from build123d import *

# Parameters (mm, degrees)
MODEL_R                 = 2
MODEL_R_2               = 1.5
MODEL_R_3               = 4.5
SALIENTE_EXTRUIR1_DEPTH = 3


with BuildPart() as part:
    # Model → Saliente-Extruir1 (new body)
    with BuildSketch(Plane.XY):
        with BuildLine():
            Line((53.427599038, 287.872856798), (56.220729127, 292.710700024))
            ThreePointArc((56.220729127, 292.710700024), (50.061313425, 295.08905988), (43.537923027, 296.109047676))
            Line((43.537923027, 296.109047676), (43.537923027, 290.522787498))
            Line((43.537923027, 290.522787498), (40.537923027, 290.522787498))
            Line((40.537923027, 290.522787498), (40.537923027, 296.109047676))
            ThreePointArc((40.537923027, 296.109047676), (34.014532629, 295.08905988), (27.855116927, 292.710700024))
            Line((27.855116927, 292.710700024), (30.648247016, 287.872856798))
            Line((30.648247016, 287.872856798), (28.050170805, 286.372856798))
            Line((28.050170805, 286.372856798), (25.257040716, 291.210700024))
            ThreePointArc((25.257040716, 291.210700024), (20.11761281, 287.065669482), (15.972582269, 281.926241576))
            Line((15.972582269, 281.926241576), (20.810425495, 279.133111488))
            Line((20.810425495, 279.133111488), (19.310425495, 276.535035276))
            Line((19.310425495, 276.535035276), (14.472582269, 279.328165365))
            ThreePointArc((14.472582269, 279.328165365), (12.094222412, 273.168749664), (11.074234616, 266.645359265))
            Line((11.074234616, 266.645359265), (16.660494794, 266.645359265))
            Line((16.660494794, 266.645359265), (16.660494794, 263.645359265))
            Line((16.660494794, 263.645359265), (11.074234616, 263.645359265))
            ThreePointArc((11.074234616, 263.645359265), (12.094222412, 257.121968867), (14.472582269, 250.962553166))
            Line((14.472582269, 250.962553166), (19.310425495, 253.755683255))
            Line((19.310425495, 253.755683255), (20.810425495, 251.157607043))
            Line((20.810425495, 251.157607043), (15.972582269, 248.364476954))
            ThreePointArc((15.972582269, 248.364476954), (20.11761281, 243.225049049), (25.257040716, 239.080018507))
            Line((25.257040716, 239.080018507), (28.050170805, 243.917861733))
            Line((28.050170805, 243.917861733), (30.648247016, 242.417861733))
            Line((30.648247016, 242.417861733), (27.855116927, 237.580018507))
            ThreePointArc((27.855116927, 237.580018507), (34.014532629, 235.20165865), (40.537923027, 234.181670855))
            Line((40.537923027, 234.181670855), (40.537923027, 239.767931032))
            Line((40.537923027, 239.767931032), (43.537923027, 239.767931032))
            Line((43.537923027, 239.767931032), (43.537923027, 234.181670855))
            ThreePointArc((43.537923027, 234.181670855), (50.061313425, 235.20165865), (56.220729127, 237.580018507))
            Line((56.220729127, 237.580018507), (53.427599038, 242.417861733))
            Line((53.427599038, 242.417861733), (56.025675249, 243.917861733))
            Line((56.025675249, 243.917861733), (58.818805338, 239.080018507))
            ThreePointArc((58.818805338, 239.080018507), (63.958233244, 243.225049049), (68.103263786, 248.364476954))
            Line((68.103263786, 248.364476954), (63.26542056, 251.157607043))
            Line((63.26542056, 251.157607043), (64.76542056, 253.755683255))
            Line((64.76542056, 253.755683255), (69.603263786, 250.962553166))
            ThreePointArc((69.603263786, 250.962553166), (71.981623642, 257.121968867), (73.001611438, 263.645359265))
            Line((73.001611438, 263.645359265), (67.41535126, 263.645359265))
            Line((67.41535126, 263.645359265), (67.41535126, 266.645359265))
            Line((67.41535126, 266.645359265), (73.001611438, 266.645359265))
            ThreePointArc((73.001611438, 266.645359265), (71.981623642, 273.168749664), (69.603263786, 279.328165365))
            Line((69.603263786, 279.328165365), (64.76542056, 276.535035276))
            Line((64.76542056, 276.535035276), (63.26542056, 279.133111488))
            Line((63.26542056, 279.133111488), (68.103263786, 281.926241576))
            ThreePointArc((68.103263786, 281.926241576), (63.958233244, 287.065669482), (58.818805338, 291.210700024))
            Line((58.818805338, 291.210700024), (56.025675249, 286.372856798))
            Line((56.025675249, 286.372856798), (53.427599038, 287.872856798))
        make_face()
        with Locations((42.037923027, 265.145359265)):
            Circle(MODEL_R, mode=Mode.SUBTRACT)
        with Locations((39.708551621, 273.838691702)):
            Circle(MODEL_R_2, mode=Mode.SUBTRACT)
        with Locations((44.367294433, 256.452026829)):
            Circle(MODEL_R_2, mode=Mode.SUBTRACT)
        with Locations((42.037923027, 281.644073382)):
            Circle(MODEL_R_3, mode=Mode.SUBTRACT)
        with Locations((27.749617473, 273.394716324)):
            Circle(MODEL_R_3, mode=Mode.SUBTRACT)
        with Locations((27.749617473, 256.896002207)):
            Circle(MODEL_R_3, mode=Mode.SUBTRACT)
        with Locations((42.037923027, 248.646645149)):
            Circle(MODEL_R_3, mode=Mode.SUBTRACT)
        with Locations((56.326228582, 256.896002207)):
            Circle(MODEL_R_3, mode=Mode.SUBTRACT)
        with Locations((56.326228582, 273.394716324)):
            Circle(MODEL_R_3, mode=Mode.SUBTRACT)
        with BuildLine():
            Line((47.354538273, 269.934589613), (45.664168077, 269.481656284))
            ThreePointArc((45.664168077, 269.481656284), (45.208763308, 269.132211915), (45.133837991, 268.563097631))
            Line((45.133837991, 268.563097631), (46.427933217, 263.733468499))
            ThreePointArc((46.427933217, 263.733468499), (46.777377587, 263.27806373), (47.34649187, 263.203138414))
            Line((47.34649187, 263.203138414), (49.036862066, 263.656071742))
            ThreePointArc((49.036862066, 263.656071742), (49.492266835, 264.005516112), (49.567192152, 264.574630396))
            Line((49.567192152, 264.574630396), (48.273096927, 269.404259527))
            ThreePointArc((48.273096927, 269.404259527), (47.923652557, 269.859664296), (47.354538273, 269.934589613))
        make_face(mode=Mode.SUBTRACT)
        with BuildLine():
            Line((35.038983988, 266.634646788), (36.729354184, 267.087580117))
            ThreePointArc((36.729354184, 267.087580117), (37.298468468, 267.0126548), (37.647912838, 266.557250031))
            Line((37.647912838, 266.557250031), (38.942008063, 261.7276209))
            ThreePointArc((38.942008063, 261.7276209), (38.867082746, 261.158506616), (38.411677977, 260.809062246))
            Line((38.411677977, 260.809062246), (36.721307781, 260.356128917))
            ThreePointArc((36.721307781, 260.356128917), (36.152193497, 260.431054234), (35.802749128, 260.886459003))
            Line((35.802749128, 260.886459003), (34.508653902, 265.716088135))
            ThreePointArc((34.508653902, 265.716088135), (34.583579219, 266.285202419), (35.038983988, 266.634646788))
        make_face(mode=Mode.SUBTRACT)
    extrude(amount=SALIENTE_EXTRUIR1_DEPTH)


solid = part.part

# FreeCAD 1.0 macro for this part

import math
import FreeCAD as App
import Part
import Sketcher

V = App.Vector
Q = App.Units.Quantity

doc = App.newDocument("Part")
body = doc.addObject("PartDesign::Body", "Body")

# Sketch on XY plane
sketch1 = body.newObject("Sketcher::SketchObject", "Sketch")
sketch1.AttachmentSupport = (doc.getObject("XY_Plane"), [""])
sketch1.MapMode = "FlatFace"
sketch1.addGeometry([
    Part.LineSegment(V(53.4, 287.9, 0), V(56.2, 292.7, 0)),  # 0
    Part.ArcOfCircle(Part.Circle(V(42, 265.1, 0), V(0, 0, 1), 31), math.radians(63), math.radians(87)),  # 1
    Part.LineSegment(V(43.5, 296.1, 0), V(43.5, 290.5, 0)),  # 2
    Part.LineSegment(V(43.5, 290.5, 0), V(40.5, 290.5, 0)),  # 3
    Part.LineSegment(V(40.5, 290.5, 0), V(40.5, 296.1, 0)),  # 4
    Part.ArcOfCircle(Part.Circle(V(42, 265.1, 0), V(0, 0, 1), 31), math.radians(93), math.radians(117)),  # 5
    Part.LineSegment(V(27.9, 292.7, 0), V(30.6, 287.9, 0)),  # 6
    Part.LineSegment(V(30.6, 287.9, 0), V(28.1, 286.4, 0)),  # 7
    Part.LineSegment(V(28.1, 286.4, 0), V(25.3, 291.2, 0)),  # 8
    Part.ArcOfCircle(Part.Circle(V(42, 265.1, 0), V(0, 0, 1), 31), math.radians(123), math.radians(147)),  # 9
    Part.LineSegment(V(16, 281.9, 0), V(20.8, 279.1, 0)),  # 10
    Part.LineSegment(V(20.8, 279.1, 0), V(19.3, 276.5, 0)),  # 11
    Part.LineSegment(V(19.3, 276.5, 0), V(14.5, 279.3, 0)),  # 12
    Part.ArcOfCircle(Part.Circle(V(42, 265.1, 0), V(0, 0, 1), 31), math.radians(153), math.radians(177)),  # 13
    Part.LineSegment(V(11.1, 266.6, 0), V(16.7, 266.6, 0)),  # 14
    Part.LineSegment(V(16.7, 266.6, 0), V(16.7, 263.6, 0)),  # 15
    Part.LineSegment(V(16.7, 263.6, 0), V(11.1, 263.6, 0)),  # 16
    Part.ArcOfCircle(Part.Circle(V(42, 265.1, 0), V(0, 0, 1), 31), math.radians(-177), math.radians(-153)),  # 17
    Part.LineSegment(V(14.5, 251, 0), V(19.3, 253.8, 0)),  # 18
    Part.LineSegment(V(19.3, 253.8, 0), V(20.8, 251.2, 0)),  # 19
    Part.LineSegment(V(20.8, 251.2, 0), V(16, 248.4, 0)),  # 20
    Part.ArcOfCircle(Part.Circle(V(42, 265.1, 0), V(0, 0, 1), 31), math.radians(-147), math.radians(-123)),  # 21
    Part.LineSegment(V(25.3, 239.1, 0), V(28.1, 243.9, 0)),  # 22
    Part.LineSegment(V(28.1, 243.9, 0), V(30.6, 242.4, 0)),  # 23
    Part.LineSegment(V(30.6, 242.4, 0), V(27.9, 237.6, 0)),  # 24
    Part.ArcOfCircle(Part.Circle(V(42, 265.1, 0), V(0, 0, 1), 31), math.radians(-117), math.radians(-93)),  # 25
    Part.LineSegment(V(40.5, 234.2, 0), V(40.5, 239.8, 0)),  # 26
    Part.LineSegment(V(40.5, 239.8, 0), V(43.5, 239.8, 0)),  # 27
    Part.LineSegment(V(43.5, 239.8, 0), V(43.5, 234.2, 0)),  # 28
    Part.ArcOfCircle(Part.Circle(V(42, 265.1, 0), V(0, 0, 1), 31), math.radians(-87), math.radians(-63)),  # 29
    Part.LineSegment(V(56.2, 237.6, 0), V(53.4, 242.4, 0)),  # 30
    Part.LineSegment(V(53.4, 242.4, 0), V(56, 243.9, 0)),  # 31
    Part.LineSegment(V(56, 243.9, 0), V(58.8, 239.1, 0)),  # 32
    Part.ArcOfCircle(Part.Circle(V(42, 265.1, 0), V(0, 0, 1), 31), math.radians(-57), math.radians(-33)),  # 33
    Part.LineSegment(V(68.1, 248.4, 0), V(63.3, 251.2, 0)),  # 34
    Part.LineSegment(V(63.3, 251.2, 0), V(64.8, 253.8, 0)),  # 35
    Part.LineSegment(V(64.8, 253.8, 0), V(69.6, 251, 0)),  # 36
    Part.ArcOfCircle(Part.Circle(V(42, 265.1, 0), V(0, 0, 1), 31), math.radians(-27), math.radians(-3)),  # 37
    Part.LineSegment(V(73, 263.6, 0), V(67.4, 263.6, 0)),  # 38
    Part.LineSegment(V(67.4, 263.6, 0), V(67.4, 266.6, 0)),  # 39
    Part.LineSegment(V(67.4, 266.6, 0), V(73, 266.6, 0)),  # 40
    Part.ArcOfCircle(Part.Circle(V(42, 265.1, 0), V(0, 0, 1), 31), math.radians(3), math.radians(27)),  # 41
    Part.LineSegment(V(69.6, 279.3, 0), V(64.8, 276.5, 0)),  # 42
    Part.LineSegment(V(64.8, 276.5, 0), V(63.3, 279.1, 0)),  # 43
    Part.LineSegment(V(63.3, 279.1, 0), V(68.1, 281.9, 0)),  # 44
    Part.ArcOfCircle(Part.Circle(V(42, 265.1, 0), V(0, 0, 1), 31), math.radians(33), math.radians(57)),  # 45
    Part.LineSegment(V(58.8, 291.2, 0), V(56, 286.4, 0)),  # 46
    Part.LineSegment(V(56, 286.4, 0), V(53.4, 287.9, 0)),  # 47
    Part.Circle(V(42, 248.6, 0), V(0, 0, 1), 4.5),  # 48
    Part.Circle(V(27.7, 256.9, 0), V(0, 0, 1), 4.5),  # 49
    Part.ArcOfCircle(Part.Circle(V(35.2, 265.9, 0), V(0, 0, 1), 0.7), math.radians(105), math.radians(195)),  # 50
    Part.LineSegment(V(35, 266.6, 0), V(36.7, 267.1, 0)),  # 51
    Part.ArcOfCircle(Part.Circle(V(36.9, 266.4, 0), V(0, 0, 1), 0.8), math.radians(15), math.radians(105)),  # 52
    Part.LineSegment(V(37.6, 266.6, 0), V(38.9, 261.7, 0)),  # 53
    Part.ArcOfCircle(Part.Circle(V(38.2, 261.5, 0), V(0, 0, 1), 0.8), math.radians(-75), math.radians(15)),  # 54
    Part.LineSegment(V(38.4, 260.8, 0), V(36.7, 260.4, 0)),  # 55
    Part.ArcOfCircle(Part.Circle(V(36.5, 261.1, 0), V(0, 0, 1), 0.7), math.radians(-165), math.radians(-75)),  # 56
    Part.LineSegment(V(35.8, 260.9, 0), V(34.5, 265.7, 0)),  # 57
    Part.Circle(V(42, 265.1, 0), V(0, 0, 1), 2),  # 58
    Part.Circle(V(44.4, 256.5, 0), V(0, 0, 1), 1.5),  # 59
    Part.Circle(V(56.3, 256.9, 0), V(0, 0, 1), 4.5),  # 60
    Part.Circle(V(27.7, 273.4, 0), V(0, 0, 1), 4.5),  # 61
    Part.Circle(V(39.7, 273.8, 0), V(0, 0, 1), 1.5),  # 62
    Part.Circle(V(42, 281.6, 0), V(0, 0, 1), 4.5),  # 63
    Part.LineSegment(V(45.7, 269.5, 0), V(47.4, 269.9, 0)),  # 64
    Part.ArcOfCircle(Part.Circle(V(47.5, 269.2, 0), V(0, 0, 1), 0.8), math.radians(15), math.radians(105)),  # 65
    Part.LineSegment(V(48.3, 269.4, 0), V(49.6, 264.6, 0)),  # 66
    Part.ArcOfCircle(Part.Circle(V(48.8, 264.4, 0), V(0, 0, 1), 0.8), math.radians(-75), math.radians(15)),  # 67
    Part.LineSegment(V(49, 263.7, 0), V(47.3, 263.2, 0)),  # 68
    Part.ArcOfCircle(Part.Circle(V(47.2, 263.9, 0), V(0, 0, 1), 0.7), math.radians(-165), math.radians(-75)),  # 69
    Part.LineSegment(V(46.4, 263.7, 0), V(45.1, 268.6, 0)),  # 70
    Part.ArcOfCircle(Part.Circle(V(45.9, 268.8, 0), V(0, 0, 1), 0.7), math.radians(105), math.radians(195)),  # 71
    Part.Circle(V(56.3, 273.4, 0), V(0, 0, 1), 4.5),  # 72
], False)
sketch1.addConstraint([
    Sketcher.Constraint("Coincident", 0, 2, 1, 1),
    Sketcher.Constraint("Coincident", 1, 2, 2, 1),
    Sketcher.Constraint("Coincident", 2, 2, 3, 1),
    Sketcher.Constraint("Coincident", 3, 2, 4, 1),
    Sketcher.Constraint("Coincident", 4, 2, 5, 1),
    Sketcher.Constraint("Coincident", 5, 2, 6, 1),
    Sketcher.Constraint("Coincident", 6, 2, 7, 1),
    Sketcher.Constraint("Coincident", 7, 2, 8, 1),
    Sketcher.Constraint("Coincident", 8, 2, 9, 1),
    Sketcher.Constraint("Coincident", 9, 2, 10, 1),
    Sketcher.Constraint("Coincident", 10, 2, 11, 1),
    Sketcher.Constraint("Coincident", 11, 2, 12, 1),
    Sketcher.Constraint("Coincident", 12, 2, 13, 1),
    Sketcher.Constraint("Coincident", 13, 2, 14, 1),
    Sketcher.Constraint("Coincident", 14, 2, 15, 1),
    Sketcher.Constraint("Coincident", 15, 2, 16, 1),
    Sketcher.Constraint("Coincident", 16, 2, 17, 1),
    Sketcher.Constraint("Coincident", 17, 2, 18, 1),
    Sketcher.Constraint("Coincident", 18, 2, 19, 1),
    Sketcher.Constraint("Coincident", 19, 2, 20, 1),
    Sketcher.Constraint("Coincident", 20, 2, 21, 1),
    Sketcher.Constraint("Coincident", 21, 2, 22, 1),
    Sketcher.Constraint("Coincident", 22, 2, 23, 1),
    Sketcher.Constraint("Coincident", 23, 2, 24, 1),
    Sketcher.Constraint("Coincident", 24, 2, 25, 1),
    Sketcher.Constraint("Coincident", 25, 2, 26, 1),
    Sketcher.Constraint("Coincident", 26, 2, 27, 1),
    Sketcher.Constraint("Coincident", 27, 2, 28, 1),
    Sketcher.Constraint("Coincident", 28, 2, 29, 1),
    Sketcher.Constraint("Coincident", 29, 2, 30, 1),
    Sketcher.Constraint("Coincident", 30, 2, 31, 1),
    Sketcher.Constraint("Coincident", 31, 2, 32, 1),
    Sketcher.Constraint("Coincident", 32, 2, 33, 1),
    Sketcher.Constraint("Coincident", 33, 2, 34, 1),
    Sketcher.Constraint("Coincident", 34, 2, 35, 1),
    Sketcher.Constraint("Coincident", 35, 2, 36, 1),
    Sketcher.Constraint("Coincident", 36, 2, 37, 1),
    Sketcher.Constraint("Coincident", 37, 2, 38, 1),
    Sketcher.Constraint("Coincident", 38, 2, 39, 1),
    Sketcher.Constraint("Coincident", 39, 2, 40, 1),
    Sketcher.Constraint("Coincident", 40, 2, 41, 1),
    Sketcher.Constraint("Coincident", 41, 2, 42, 1),
    Sketcher.Constraint("Coincident", 42, 2, 43, 1),
    Sketcher.Constraint("Coincident", 43, 2, 44, 1),
    Sketcher.Constraint("Coincident", 44, 2, 45, 1),
    Sketcher.Constraint("Coincident", 45, 2, 46, 1),
    Sketcher.Constraint("Coincident", 46, 2, 47, 1),
    Sketcher.Constraint("Coincident", 47, 2, 0, 1),
    Sketcher.Constraint("Tangent", 50, 1, 51, 1),
    Sketcher.Constraint("Tangent", 51, 2, 52, 2),
    Sketcher.Constraint("Tangent", 52, 1, 53, 1),
    Sketcher.Constraint("Tangent", 53, 2, 54, 2),
    Sketcher.Constraint("Tangent", 54, 1, 55, 1),
    Sketcher.Constraint("Tangent", 55, 2, 56, 2),
    Sketcher.Constraint("Tangent", 56, 1, 57, 1),
    Sketcher.Constraint("Tangent", 57, 2, 50, 2),
    Sketcher.Constraint("Tangent", 64, 2, 65, 2),
    Sketcher.Constraint("Tangent", 65, 1, 66, 1),
    Sketcher.Constraint("Tangent", 66, 2, 67, 2),
    Sketcher.Constraint("Tangent", 67, 1, 68, 1),
    Sketcher.Constraint("Tangent", 68, 2, 69, 2),
    Sketcher.Constraint("Tangent", 69, 1, 70, 1),
    Sketcher.Constraint("Tangent", 70, 2, 71, 2),
    Sketcher.Constraint("Tangent", 71, 1, 64, 1),
    Sketcher.Constraint("Vertical", 2),
    Sketcher.Constraint("Horizontal", 3),
    Sketcher.Constraint("Vertical", 4),
    Sketcher.Constraint("Horizontal", 14),
    Sketcher.Constraint("Vertical", 15),
    Sketcher.Constraint("Horizontal", 16),
    Sketcher.Constraint("Vertical", 26),
    Sketcher.Constraint("Horizontal", 27),
    Sketcher.Constraint("Vertical", 28),
    Sketcher.Constraint("Horizontal", 38),
    Sketcher.Constraint("Vertical", 39),
    Sketcher.Constraint("Horizontal", 40),
    Sketcher.Constraint("Coincident", 5, 3, 1, 3),
    Sketcher.Constraint("Coincident", 9, 3, 1, 3),
    Sketcher.Constraint("Coincident", 13, 3, 1, 3),
    Sketcher.Constraint("Coincident", 17, 3, 1, 3),
    Sketcher.Constraint("Coincident", 21, 3, 1, 3),
    Sketcher.Constraint("Coincident", 25, 3, 1, 3),
    Sketcher.Constraint("Coincident", 29, 3, 1, 3),
    Sketcher.Constraint("Coincident", 33, 3, 1, 3),
    Sketcher.Constraint("Coincident", 37, 3, 1, 3),
    Sketcher.Constraint("Coincident", 41, 3, 1, 3),
    Sketcher.Constraint("Coincident", 45, 3, 1, 3),
    Sketcher.Constraint("Coincident", 58, 3, 1, 3),
    Sketcher.Constraint("Equal", 1, 5),
    Sketcher.Constraint("Equal", 5, 9),
    Sketcher.Constraint("Equal", 9, 13),
    Sketcher.Constraint("Equal", 13, 17),
    Sketcher.Constraint("Equal", 17, 21),
    Sketcher.Constraint("Equal", 21, 25),
    Sketcher.Constraint("Equal", 25, 29),
    Sketcher.Constraint("Equal", 29, 33),
    Sketcher.Constraint("Equal", 33, 37),
    Sketcher.Constraint("Equal", 37, 41),
    Sketcher.Constraint("Equal", 41, 45),
    Sketcher.Constraint("Equal", 48, 49),
    Sketcher.Constraint("Equal", 50, 52),
    Sketcher.Constraint("Equal", 52, 54),
    Sketcher.Constraint("Equal", 54, 56),
    Sketcher.Constraint("Equal", 49, 60),
    Sketcher.Constraint("Equal", 60, 61),
    Sketcher.Constraint("Equal", 59, 62),
    Sketcher.Constraint("Equal", 61, 63),
    Sketcher.Constraint("Equal", 56, 65),
    Sketcher.Constraint("Equal", 65, 67),
    Sketcher.Constraint("Equal", 67, 69),
    Sketcher.Constraint("Equal", 69, 71),
    Sketcher.Constraint("Equal", 63, 72),
    Sketcher.Constraint("Perpendicular", 6, 7),
    Sketcher.Constraint("Perpendicular", 7, 8),
    Sketcher.Constraint("Perpendicular", 0, 10),
    Sketcher.Constraint("Perpendicular", 10, 11),
    Sketcher.Constraint("Perpendicular", 11, 12),
    Sketcher.Constraint("Perpendicular", 8, 18),
    Sketcher.Constraint("Perpendicular", 18, 19),
    Sketcher.Constraint("Perpendicular", 19, 20),
    Sketcher.Constraint("Perpendicular", 12, 22),
    Sketcher.Constraint("Perpendicular", 22, 23),
    Sketcher.Constraint("Perpendicular", 23, 24),
    Sketcher.Constraint("Perpendicular", 20, 30),
    Sketcher.Constraint("Perpendicular", 30, 31),
    Sketcher.Constraint("Perpendicular", 31, 32),
    Sketcher.Constraint("Perpendicular", 24, 34),
    Sketcher.Constraint("Perpendicular", 34, 35),
    Sketcher.Constraint("Perpendicular", 35, 36),
    Sketcher.Constraint("Perpendicular", 32, 42),
    Sketcher.Constraint("Perpendicular", 42, 43),
    Sketcher.Constraint("Perpendicular", 43, 44),
    Sketcher.Constraint("Perpendicular", 36, 46),
    Sketcher.Constraint("Perpendicular", 46, 47),
    Sketcher.Constraint("Perpendicular", 51, 53),
    Sketcher.Constraint("Perpendicular", 53, 55),
    Sketcher.Constraint("Perpendicular", 55, 57),
    Sketcher.Constraint("Perpendicular", 57, 64),
    Sketcher.Constraint("Perpendicular", 64, 66),
    Sketcher.Constraint("Perpendicular", 66, 68),
    Sketcher.Constraint("Perpendicular", 68, 70),
    Sketcher.Constraint("Horizontal", 49, 3, 60, 3),
    Sketcher.Constraint("Horizontal", 61, 3, 72, 3),
    Sketcher.Constraint("Horizontal", 1, 2, 4, 2),
    Sketcher.Constraint("Horizontal", 0, 2, 5, 2),
    Sketcher.Constraint("Horizontal", 25, 2, 28, 2),
    Sketcher.Constraint("Horizontal", 24, 2, 29, 2),
    Sketcher.Constraint("Horizontal", 23, 2, 30, 2),
    Sketcher.Constraint("Horizontal", 22, 2, 31, 2),
    Sketcher.Constraint("Horizontal", 21, 2, 32, 2),
    Sketcher.Constraint("Horizontal", 20, 2, 33, 2),
    Sketcher.Constraint("Horizontal", 19, 2, 34, 2),
    Sketcher.Constraint("Horizontal", 18, 2, 35, 2),
    Sketcher.Constraint("Horizontal", 16, 2, 37, 2),
    Sketcher.Constraint("Horizontal", 14, 2, 39, 2),
    Sketcher.Constraint("Horizontal", 12, 2, 41, 2),
    Sketcher.Constraint("Horizontal", 11, 2, 42, 2),
    Sketcher.Constraint("Horizontal", 10, 2, 43, 2),
    Sketcher.Constraint("Horizontal", 8, 2, 45, 2),
    Sketcher.Constraint("Horizontal", 7, 2, 46, 2),
    Sketcher.Constraint("Vertical", 45, 3, 48, 3),
    Sketcher.Constraint("Vertical", 49, 3, 61, 3),
    Sketcher.Constraint("Vertical", 58, 3, 63, 3),
    Sketcher.Constraint("Vertical", 60, 3, 72, 3),
    Sketcher.Constraint("Vertical", 13, 2, 16, 2),
    Sketcher.Constraint("Vertical", 12, 2, 17, 2),
    Sketcher.Constraint("Vertical", 11, 2, 18, 2),
    Sketcher.Constraint("Vertical", 10, 2, 19, 2),
    Sketcher.Constraint("Vertical", 8, 2, 21, 2),
    Sketcher.Constraint("Vertical", 7, 2, 22, 2),
    Sketcher.Constraint("Vertical", 6, 2, 23, 2),
    Sketcher.Constraint("Vertical", 4, 2, 25, 2),
    Sketcher.Constraint("Equal", 16, 38),
    Sketcher.Constraint("Equal", 40, 2),
    Sketcher.Constraint("Equal", 27, 15),
    Sketcher.Constraint("Equal", 4, 26),
    Sketcher.Constraint("Equal", 6, 8),
    Sketcher.Constraint("Equal", 8, 10),
    Sketcher.Constraint("Equal", 7, 11),
    Sketcher.Constraint("Equal", 10, 12),
    Sketcher.Constraint("Equal", 55, 64),
    Sketcher.Constraint("Equal", 57, 66),
    Sketcher.Constraint("Diameter", 48, 9.0),
    Sketcher.Constraint("Diameter", 58, 4.0),
    Sketcher.Constraint("Diameter", 59, 3.0),
    Sketcher.Constraint("Radius", 1, 31.0),
    Sketcher.Constraint("DistanceX", 3, 2, 3, 1, 3.0),
    Sketcher.Constraint("Angle", 0, Q("60 deg")),
    Sketcher.Constraint("Angle", 51, Q("15 deg")),
    Sketcher.Constraint("Radius", 50, 0.75),
    Sketcher.Constraint("Distance", 7, 3.0),
    Sketcher.Constraint("Distance", 53, 5.0),
    Sketcher.Constraint("Distance", 51, 1.75),
    Sketcher.Constraint("DistanceX", 14, 1, 14, 2, 5.58626),
    Sketcher.Constraint("DistanceX", -1, 1, 50, 3, 35.233098),
    Sketcher.Constraint("DistanceY", -1, 1, 0, 2, 292.7107),
    Sketcher.Constraint("DistanceX", -1, 1, 30, 2, 53.427599),
    Sketcher.Constraint("Distance", 0, 5.58626),
    Sketcher.Constraint("DistanceX", -1, 1, 60, 3, 56.326229),
    Sketcher.Constraint("DistanceX", -1, 1, 62, 3, 39.708552),
    Sketcher.Constraint("DistanceY", -1, 1, 62, 3, 273.838692),
    Sketcher.Constraint("DistanceY", -1, 1, 71, 3, 268.757212),
    Sketcher.Constraint("DistanceY", -1, 1, 51, 2, 267.08758),
    Sketcher.Constraint("DistanceX", -1, 1, 64, 2, 47.354538),
    Sketcher.Constraint("DistanceY", -1, 1, 48, 3, 248.646645),
    Sketcher.Constraint("DistanceX", -1, 1, 49, 3, 27.749617),
    Sketcher.Constraint("DistanceY", -1, 1, 49, 3, 256.896002),
    Sketcher.Constraint("DistanceX", -1, 1, 59, 3, 44.367294),
    Sketcher.Constraint("DistanceY", -1, 1, 59, 3, 256.452027),
    Sketcher.Constraint("DistanceY", -1, 1, 61, 3, 273.394716),
    Sketcher.Constraint("DistanceY", -1, 1, 63, 3, 281.644073),
])
pad1 = body.newObject("PartDesign::Pad", "Pad")
pad1.Profile = sketch1
pad1.Length = 3

doc.recompute()
